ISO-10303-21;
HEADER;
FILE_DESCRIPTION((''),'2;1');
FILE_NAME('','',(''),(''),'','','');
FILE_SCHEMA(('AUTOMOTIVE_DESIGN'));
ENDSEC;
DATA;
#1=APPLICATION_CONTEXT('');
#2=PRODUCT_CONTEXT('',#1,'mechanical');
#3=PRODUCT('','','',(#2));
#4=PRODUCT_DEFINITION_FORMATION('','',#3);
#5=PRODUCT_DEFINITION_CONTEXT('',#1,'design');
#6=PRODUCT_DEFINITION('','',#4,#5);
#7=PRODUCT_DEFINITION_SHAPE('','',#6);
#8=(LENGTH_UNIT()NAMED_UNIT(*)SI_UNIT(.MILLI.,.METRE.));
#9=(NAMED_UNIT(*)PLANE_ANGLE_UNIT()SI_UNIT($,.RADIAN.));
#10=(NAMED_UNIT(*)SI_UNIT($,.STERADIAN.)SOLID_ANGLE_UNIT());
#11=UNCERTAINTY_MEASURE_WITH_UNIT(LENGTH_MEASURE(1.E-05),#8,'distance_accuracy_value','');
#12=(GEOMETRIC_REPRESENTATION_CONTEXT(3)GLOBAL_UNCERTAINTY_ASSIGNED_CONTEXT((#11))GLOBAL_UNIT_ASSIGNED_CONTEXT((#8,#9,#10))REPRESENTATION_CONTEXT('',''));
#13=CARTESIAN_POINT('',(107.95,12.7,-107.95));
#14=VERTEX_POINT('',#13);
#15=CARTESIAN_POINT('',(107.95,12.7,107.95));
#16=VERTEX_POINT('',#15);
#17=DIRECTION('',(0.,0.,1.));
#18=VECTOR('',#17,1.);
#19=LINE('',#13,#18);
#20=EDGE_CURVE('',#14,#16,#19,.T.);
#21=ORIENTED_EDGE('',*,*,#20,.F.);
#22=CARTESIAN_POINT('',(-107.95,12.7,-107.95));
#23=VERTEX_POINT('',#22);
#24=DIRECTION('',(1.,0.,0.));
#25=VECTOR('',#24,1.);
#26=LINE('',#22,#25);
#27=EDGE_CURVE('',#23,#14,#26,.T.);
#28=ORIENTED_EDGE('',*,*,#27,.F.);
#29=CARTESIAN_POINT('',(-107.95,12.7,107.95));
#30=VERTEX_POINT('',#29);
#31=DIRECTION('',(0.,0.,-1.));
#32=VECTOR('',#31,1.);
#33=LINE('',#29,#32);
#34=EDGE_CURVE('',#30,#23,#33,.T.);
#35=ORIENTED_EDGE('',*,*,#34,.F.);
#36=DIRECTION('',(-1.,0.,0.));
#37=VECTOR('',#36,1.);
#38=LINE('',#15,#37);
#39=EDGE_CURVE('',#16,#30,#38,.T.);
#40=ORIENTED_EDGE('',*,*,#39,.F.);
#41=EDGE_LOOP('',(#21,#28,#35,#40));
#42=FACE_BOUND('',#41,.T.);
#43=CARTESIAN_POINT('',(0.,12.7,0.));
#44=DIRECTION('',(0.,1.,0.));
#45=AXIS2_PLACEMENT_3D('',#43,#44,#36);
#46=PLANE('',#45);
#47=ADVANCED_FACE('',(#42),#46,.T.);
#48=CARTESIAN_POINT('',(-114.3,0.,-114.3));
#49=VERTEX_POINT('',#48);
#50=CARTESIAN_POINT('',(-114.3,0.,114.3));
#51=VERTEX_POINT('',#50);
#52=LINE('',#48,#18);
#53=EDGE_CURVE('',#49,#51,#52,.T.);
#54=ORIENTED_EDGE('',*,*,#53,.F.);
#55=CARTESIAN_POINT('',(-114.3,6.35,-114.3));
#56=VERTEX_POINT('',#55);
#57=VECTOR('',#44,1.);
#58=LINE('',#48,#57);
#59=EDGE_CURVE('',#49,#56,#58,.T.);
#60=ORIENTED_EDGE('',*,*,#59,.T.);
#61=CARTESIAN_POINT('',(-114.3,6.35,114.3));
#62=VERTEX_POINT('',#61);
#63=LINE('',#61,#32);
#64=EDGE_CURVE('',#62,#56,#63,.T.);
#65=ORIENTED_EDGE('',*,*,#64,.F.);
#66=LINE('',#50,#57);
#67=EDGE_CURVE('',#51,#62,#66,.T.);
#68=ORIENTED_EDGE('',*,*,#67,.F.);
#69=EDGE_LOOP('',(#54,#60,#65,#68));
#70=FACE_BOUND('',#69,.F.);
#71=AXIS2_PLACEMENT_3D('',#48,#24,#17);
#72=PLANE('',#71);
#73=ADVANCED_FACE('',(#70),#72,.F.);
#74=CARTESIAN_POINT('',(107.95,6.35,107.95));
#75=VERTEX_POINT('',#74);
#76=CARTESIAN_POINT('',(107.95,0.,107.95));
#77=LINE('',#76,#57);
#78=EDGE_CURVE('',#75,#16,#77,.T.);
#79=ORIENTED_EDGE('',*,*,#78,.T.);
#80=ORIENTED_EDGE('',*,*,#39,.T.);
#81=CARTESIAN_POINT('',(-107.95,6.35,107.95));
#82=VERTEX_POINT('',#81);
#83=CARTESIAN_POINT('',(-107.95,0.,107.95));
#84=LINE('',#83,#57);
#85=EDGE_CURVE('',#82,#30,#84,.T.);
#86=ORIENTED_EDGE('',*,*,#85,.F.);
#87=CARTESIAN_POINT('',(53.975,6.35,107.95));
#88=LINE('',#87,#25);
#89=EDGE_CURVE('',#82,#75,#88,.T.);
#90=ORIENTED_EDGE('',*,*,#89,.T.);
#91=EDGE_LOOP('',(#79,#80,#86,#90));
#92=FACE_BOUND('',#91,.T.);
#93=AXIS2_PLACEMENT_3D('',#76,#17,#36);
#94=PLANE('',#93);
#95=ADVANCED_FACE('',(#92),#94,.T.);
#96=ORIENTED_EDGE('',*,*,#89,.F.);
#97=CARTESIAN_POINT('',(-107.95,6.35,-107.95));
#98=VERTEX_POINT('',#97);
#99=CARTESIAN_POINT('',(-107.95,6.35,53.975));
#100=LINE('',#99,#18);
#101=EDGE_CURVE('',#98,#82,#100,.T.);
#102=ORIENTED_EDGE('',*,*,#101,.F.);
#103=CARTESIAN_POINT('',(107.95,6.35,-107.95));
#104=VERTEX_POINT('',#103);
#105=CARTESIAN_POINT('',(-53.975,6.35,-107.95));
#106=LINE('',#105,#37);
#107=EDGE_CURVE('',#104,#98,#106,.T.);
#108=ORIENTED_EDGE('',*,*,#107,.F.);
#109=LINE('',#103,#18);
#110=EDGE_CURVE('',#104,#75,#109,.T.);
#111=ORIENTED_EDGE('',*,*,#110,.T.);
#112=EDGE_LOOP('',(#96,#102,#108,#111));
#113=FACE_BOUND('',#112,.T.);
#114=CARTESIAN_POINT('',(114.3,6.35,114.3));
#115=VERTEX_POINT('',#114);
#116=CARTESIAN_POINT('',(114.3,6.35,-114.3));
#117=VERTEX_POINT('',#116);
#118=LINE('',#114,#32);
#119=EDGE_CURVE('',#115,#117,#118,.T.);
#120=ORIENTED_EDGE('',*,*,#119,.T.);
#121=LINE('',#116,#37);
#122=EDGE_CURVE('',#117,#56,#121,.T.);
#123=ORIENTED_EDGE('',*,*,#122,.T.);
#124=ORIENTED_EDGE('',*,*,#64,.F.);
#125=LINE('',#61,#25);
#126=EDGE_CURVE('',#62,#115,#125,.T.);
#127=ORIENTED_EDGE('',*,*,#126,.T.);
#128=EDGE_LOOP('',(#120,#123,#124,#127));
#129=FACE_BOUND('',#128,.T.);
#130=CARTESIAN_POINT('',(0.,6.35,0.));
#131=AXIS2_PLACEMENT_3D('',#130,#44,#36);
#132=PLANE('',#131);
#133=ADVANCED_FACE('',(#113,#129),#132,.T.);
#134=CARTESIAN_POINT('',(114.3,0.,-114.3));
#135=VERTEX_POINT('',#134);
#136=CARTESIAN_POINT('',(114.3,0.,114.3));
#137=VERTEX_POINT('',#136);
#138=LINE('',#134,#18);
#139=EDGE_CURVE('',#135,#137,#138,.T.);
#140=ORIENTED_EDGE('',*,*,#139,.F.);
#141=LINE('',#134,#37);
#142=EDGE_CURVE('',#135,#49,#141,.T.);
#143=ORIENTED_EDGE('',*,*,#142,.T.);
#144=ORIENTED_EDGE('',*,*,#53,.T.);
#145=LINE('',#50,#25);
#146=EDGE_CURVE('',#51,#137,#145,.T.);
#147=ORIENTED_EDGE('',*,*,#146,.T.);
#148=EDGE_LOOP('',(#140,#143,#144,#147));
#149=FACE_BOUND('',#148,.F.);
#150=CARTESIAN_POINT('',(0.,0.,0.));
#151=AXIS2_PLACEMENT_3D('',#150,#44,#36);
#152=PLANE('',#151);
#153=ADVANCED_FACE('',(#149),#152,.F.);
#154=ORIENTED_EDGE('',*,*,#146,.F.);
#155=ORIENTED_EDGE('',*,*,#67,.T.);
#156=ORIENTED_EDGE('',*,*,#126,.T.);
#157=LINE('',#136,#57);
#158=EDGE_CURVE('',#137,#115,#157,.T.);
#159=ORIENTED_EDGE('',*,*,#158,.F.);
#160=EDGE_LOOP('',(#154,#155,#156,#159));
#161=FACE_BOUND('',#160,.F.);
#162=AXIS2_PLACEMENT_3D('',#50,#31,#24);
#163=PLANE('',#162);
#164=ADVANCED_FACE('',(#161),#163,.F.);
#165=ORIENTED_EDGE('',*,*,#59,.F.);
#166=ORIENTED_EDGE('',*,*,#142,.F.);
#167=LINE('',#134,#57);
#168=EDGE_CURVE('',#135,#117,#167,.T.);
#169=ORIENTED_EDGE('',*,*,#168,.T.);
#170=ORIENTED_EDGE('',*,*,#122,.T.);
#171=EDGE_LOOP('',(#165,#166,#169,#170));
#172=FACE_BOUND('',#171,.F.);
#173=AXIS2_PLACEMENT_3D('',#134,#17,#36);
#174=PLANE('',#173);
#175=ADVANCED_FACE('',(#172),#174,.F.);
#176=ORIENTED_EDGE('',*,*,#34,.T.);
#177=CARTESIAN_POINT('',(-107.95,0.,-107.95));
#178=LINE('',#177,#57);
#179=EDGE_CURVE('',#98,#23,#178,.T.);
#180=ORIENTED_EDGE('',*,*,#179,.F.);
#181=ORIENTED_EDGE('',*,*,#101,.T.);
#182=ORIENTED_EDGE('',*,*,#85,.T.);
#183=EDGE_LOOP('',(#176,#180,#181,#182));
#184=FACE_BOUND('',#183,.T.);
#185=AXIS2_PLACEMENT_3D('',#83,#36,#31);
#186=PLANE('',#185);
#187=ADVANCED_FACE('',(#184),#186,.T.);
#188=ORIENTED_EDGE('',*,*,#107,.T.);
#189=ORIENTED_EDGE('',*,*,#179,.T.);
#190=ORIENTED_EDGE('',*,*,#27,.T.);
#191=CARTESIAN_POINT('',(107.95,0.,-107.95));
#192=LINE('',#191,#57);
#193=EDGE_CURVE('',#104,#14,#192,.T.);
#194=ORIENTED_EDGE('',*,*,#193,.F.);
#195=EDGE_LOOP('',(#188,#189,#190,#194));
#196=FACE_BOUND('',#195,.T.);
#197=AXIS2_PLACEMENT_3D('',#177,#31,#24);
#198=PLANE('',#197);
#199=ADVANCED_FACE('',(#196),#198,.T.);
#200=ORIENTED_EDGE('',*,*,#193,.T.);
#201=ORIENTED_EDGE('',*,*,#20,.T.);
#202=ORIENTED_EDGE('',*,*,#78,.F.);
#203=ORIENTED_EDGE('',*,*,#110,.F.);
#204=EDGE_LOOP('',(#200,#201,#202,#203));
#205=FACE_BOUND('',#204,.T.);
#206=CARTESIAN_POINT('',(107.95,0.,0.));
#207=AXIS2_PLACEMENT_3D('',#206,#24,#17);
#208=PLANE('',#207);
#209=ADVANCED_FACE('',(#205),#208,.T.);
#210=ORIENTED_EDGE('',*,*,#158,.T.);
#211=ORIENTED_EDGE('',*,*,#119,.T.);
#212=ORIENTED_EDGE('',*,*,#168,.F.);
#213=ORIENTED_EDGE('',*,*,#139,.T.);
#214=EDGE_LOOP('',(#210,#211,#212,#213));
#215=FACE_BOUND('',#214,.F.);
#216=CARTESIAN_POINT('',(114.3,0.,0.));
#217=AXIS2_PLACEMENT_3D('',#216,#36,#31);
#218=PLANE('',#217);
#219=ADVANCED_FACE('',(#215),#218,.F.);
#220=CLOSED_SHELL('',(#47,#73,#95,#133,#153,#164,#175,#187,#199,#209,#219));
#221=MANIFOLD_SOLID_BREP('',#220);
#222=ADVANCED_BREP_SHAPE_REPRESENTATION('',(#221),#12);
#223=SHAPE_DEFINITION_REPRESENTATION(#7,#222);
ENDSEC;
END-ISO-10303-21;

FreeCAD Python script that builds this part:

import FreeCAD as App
import Part
import Sketcher

V = App.Vector
Q = App.Units.Quantity


def add_polygon(sketch, points):
    """Adds a closed chain of lines whose ends are joined by coincident constraints."""
    first, n = sketch.GeometryCount, len(points)
    for a, b in zip(points, points[1:] + points[:1]):
        sketch.addGeometry(Part.LineSegment(App.Vector(*a, 0), App.Vector(*b, 0)), False)
    for i in range(n):
        sketch.addConstraint(Sketcher.Constraint("Coincident", first + i, 2, first + (i + 1) % n, 1))

doc = App.newDocument("Part")
body = doc.addObject("PartDesign::Body", "Body")

# Sketch on XZ plane
sketch1 = body.newObject("Sketcher::SketchObject", "Sketch")
sketch1.AttachmentSupport = (doc.getObject("XZ_Plane"), [""])
sketch1.MapMode = "FlatFace"
add_polygon(sketch1, [(-114, -114), (-114, 114), (114, 114), (114, -114)])  # lines 0-3
sketch1.addConstraint([
    Sketcher.Constraint("Vertical", 0),
    Sketcher.Constraint("Horizontal", 1),
    Sketcher.Constraint("Vertical", 2),
    Sketcher.Constraint("Horizontal", 3),
    Sketcher.Constraint("Symmetric", 0, 2, 2, 2, -1, 1),
    Sketcher.Constraint("Equal", 3, 0),
    Sketcher.Constraint("DistanceX", 1, 1, 1, 2, Q("9 in")),
])
pad1 = body.newObject("PartDesign::Pad", "Pad")
pad1.Profile = sketch1
pad1.Length = Q("0.25 in")
pad1.Reversed = True

# Sketch on XZ plane
sketch2 = body.newObject("Sketcher::SketchObject", "Sketch001")
sketch2.AttachmentSupport = (doc.getObject("XZ_Plane"), [""])
sketch2.MapMode = "FlatFace"
add_polygon(sketch2, [(108, 108), (108, -108), (-108, -108), (-108, 108)])  # lines 0-3
sketch2.addConstraint([
    Sketcher.Constraint("Vertical", 0),
    Sketcher.Constraint("Horizontal", 1),
    Sketcher.Constraint("Vertical", 2),
    Sketcher.Constraint("Horizontal", 3),
    Sketcher.Constraint("Symmetric", 0, 2, 2, 2, -1, 1),
    Sketcher.Constraint("Equal", 3, 0),
    Sketcher.Constraint("DistanceX", 1, 2, 1, 1, Q("8.5 in")),
])
pad2 = body.newObject("PartDesign::Pad", "Pad001")
pad2.Profile = sketch2
pad2.Length = Q("0.5 in")
pad2.Reversed = True

doc.recompute()
